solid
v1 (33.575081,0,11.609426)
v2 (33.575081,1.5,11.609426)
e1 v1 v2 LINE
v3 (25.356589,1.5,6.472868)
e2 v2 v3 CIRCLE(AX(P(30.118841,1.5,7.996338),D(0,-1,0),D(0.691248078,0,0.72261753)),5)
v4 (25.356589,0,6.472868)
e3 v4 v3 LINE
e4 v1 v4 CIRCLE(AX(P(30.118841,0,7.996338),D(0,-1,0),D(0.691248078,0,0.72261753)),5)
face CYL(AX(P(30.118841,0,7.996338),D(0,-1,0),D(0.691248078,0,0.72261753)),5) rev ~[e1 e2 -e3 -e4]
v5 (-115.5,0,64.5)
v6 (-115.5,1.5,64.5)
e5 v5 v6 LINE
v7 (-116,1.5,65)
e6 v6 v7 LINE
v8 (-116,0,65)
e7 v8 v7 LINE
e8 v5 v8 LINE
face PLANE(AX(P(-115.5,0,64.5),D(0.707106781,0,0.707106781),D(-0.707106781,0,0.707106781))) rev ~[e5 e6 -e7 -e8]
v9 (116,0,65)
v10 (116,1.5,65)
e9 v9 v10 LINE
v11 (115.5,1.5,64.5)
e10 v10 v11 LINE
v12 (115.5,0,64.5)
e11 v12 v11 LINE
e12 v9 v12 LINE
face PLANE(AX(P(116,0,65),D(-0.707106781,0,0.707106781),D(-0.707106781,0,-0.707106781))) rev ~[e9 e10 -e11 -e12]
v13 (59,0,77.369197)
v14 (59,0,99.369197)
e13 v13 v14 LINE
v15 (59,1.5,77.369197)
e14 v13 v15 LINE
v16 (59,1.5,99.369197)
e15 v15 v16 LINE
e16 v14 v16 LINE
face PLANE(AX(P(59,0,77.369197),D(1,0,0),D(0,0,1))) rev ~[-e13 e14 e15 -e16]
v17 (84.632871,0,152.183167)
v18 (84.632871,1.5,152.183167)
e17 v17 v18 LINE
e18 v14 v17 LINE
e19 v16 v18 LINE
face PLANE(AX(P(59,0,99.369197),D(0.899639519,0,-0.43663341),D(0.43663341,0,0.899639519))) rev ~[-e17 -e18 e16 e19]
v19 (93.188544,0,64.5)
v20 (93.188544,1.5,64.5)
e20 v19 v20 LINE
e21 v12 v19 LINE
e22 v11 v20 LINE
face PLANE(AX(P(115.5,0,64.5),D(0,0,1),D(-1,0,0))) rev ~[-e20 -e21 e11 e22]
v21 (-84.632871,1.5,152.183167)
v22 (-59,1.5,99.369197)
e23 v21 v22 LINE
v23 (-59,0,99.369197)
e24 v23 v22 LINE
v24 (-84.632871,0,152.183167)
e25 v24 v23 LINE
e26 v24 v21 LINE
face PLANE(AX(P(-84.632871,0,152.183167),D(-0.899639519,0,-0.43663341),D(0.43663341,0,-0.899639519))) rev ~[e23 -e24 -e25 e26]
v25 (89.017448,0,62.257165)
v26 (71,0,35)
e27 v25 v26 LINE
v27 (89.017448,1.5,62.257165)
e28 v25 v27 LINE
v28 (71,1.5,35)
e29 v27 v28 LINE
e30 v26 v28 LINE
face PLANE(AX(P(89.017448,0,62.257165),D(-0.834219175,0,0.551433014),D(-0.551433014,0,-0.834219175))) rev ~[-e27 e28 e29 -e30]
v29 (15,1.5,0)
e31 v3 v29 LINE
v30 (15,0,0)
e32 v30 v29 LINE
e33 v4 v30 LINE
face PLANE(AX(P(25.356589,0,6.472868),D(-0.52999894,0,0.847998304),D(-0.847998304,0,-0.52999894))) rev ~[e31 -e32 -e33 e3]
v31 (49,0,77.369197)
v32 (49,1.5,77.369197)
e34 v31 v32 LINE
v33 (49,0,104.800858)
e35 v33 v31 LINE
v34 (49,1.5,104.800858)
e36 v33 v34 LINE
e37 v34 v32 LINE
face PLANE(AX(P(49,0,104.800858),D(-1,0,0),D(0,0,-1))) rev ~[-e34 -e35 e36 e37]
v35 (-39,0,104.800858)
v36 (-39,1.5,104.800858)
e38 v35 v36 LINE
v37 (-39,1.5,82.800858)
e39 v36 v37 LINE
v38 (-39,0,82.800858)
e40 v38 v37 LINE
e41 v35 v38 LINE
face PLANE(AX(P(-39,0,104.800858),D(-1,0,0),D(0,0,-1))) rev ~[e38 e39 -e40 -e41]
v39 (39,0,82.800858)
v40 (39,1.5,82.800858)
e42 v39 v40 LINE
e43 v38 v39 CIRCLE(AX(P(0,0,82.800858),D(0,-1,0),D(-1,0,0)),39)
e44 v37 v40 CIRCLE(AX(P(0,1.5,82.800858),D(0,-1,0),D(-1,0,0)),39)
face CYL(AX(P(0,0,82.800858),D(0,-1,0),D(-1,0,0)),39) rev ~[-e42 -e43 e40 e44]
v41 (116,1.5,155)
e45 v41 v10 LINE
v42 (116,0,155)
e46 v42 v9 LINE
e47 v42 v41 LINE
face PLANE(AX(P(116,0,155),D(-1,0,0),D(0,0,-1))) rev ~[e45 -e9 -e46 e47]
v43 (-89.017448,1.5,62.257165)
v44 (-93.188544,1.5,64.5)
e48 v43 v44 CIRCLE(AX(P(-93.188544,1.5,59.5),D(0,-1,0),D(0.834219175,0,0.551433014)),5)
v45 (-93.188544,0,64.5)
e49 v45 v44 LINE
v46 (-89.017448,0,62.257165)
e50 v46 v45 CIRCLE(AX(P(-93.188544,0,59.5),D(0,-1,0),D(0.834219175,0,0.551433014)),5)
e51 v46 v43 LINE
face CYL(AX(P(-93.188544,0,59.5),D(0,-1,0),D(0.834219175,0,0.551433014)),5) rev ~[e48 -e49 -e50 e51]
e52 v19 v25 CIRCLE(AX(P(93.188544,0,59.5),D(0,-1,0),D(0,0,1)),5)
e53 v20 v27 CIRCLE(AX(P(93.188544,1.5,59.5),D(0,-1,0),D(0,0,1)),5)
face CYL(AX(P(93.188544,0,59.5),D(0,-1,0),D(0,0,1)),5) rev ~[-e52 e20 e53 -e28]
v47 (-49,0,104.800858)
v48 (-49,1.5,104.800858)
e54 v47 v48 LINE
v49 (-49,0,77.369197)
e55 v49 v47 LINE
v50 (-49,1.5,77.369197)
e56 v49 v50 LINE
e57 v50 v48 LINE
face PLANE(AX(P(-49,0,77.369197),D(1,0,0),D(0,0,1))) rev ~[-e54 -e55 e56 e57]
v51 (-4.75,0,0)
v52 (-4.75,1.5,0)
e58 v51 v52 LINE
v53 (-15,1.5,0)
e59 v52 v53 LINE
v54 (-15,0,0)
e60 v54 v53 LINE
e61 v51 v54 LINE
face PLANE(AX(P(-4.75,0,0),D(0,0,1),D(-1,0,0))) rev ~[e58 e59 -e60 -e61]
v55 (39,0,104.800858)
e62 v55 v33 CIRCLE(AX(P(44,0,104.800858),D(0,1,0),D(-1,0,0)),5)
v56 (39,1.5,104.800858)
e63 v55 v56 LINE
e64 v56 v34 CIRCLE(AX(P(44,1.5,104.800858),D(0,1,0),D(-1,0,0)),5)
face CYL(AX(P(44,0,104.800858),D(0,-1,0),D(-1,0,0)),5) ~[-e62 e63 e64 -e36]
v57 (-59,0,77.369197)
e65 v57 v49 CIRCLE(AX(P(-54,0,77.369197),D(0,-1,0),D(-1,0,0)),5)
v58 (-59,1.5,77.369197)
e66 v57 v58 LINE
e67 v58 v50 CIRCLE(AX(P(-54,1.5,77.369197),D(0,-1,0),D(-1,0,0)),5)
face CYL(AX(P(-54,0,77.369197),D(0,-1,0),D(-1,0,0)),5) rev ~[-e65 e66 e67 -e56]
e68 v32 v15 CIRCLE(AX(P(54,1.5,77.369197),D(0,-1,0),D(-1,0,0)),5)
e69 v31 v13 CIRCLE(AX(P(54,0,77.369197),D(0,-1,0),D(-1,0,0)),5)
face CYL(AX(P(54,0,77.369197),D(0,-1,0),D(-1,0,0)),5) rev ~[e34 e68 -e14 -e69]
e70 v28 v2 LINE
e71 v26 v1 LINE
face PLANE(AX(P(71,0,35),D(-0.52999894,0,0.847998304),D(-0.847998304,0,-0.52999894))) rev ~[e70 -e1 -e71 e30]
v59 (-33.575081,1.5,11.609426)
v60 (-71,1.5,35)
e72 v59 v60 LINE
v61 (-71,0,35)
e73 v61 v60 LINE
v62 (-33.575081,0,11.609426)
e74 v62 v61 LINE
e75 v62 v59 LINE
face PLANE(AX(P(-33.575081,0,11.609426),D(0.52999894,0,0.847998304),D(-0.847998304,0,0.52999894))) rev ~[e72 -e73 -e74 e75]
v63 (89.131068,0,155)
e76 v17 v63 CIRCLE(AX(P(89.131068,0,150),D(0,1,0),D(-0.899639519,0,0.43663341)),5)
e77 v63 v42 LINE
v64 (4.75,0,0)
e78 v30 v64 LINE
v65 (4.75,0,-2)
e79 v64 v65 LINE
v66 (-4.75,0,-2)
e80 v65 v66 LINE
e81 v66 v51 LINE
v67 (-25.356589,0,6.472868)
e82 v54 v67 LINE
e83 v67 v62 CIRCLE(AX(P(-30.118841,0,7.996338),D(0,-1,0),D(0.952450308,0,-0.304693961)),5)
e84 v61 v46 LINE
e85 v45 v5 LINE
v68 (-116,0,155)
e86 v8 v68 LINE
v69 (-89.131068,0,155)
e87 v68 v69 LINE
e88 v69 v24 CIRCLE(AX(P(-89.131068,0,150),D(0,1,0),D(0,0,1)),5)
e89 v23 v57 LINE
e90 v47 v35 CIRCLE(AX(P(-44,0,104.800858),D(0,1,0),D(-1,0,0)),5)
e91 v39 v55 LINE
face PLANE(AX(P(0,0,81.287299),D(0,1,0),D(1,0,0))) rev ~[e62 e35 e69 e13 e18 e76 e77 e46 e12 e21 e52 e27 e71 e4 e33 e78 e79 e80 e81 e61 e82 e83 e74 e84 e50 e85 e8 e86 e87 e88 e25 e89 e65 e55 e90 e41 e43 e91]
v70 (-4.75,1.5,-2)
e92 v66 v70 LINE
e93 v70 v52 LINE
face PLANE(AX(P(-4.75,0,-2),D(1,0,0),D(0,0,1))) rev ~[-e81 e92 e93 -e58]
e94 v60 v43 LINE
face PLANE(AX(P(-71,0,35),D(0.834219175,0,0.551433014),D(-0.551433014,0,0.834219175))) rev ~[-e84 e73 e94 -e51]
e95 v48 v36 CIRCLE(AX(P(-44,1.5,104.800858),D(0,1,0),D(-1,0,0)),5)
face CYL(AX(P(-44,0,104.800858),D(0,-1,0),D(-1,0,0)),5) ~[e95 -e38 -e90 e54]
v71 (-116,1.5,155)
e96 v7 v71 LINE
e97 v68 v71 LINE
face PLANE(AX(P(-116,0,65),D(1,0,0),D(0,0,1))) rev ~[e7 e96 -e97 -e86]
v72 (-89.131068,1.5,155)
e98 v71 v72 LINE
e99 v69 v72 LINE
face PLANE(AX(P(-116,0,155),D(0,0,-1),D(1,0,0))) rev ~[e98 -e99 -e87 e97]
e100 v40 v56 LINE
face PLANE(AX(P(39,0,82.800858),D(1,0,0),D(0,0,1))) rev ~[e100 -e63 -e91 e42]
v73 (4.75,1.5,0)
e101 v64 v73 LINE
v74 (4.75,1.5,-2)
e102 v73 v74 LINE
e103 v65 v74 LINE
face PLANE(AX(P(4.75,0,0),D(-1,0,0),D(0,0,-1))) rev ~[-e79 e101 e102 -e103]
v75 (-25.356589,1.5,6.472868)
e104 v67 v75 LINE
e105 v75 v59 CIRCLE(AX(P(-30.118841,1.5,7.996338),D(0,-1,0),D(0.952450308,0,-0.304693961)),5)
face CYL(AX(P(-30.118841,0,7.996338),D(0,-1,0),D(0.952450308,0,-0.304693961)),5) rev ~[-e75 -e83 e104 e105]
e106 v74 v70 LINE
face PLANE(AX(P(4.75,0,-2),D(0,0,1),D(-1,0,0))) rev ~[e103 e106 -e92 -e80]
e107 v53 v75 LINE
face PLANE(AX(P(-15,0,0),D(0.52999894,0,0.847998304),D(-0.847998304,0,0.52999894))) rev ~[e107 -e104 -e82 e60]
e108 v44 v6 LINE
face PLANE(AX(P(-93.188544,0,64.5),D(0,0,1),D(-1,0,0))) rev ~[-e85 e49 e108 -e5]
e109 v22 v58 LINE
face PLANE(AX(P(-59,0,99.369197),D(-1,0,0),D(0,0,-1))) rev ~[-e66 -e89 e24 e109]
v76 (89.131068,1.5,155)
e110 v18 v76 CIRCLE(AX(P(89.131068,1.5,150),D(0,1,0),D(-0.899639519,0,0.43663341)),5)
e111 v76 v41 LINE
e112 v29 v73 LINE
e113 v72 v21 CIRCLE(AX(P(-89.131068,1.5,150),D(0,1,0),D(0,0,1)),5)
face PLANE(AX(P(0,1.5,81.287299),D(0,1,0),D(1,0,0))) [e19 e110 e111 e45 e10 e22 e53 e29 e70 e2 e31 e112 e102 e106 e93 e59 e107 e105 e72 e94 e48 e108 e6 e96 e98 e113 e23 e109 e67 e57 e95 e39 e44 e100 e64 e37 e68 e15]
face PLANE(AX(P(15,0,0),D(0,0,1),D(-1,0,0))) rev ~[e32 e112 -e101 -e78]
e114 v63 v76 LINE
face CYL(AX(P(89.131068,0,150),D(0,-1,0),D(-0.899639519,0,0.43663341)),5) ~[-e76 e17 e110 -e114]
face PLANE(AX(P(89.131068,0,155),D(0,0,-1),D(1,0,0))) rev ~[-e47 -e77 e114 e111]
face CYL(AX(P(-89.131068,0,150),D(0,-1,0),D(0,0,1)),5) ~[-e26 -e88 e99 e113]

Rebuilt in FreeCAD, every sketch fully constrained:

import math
import FreeCAD as App
import Part
import Sketcher
from FreeCAD import Vector

doc = App.newDocument("Part")
params = doc.addObject("Spreadsheet::Sheet", "Params")
for row, (alias, value) in enumerate([
    ("sketch1_radius", "5 mm"),
    ("sketch1_radius2", "39 mm"),
    ("sketch1_height", "2 mm"),
    ("sketch1_height2", "90 mm"),
    ("sketch1_height3", "22 mm"),
    ("pad1_length", "1.5 mm"),
], start=1):
    params.set(f"A{row}", alias)
    params.set(f"B{row}", "=" + value)
    params.setAlias(f"B{row}", alias)

body = doc.addObject("PartDesign::Body", "Body")

sketch1 = body.newObject("Sketcher::SketchObject", "Sketch")
sketch1.AttachmentSupport = (doc.getObject("XZ_Plane"), [""])
sketch1.MapMode = "FlatFace"
sketch1.addGeometry(Part.LineSegment(Vector(15, 0, 0), Vector(4.8, 0, 0)), False)
sketch1.addGeometry(Part.LineSegment(Vector(4.8, 0, 0), Vector(4.8, -2, 0)), False)
sketch1.addGeometry(Part.LineSegment(Vector(4.8, -2, 0), Vector(-4.8, -2, 0)), False)
sketch1.addGeometry(Part.LineSegment(Vector(-4.8, -2, 0), Vector(-4.8, 0, 0)), False)
sketch1.addGeometry(Part.LineSegment(Vector(-4.8, 0, 0), Vector(-15, 0, 0)), False)
sketch1.addGeometry(Part.LineSegment(Vector(-15, 0, 0), Vector(-25.4, 6.5, 0)), False)
sketch1.addGeometry(Part.ArcOfCircle(Part.Circle(Vector(-30.1, 8, 0), Vector(0, 0, 1), 5), math.radians(-18), math.radians(134)), False)
sketch1.addGeometry(Part.LineSegment(Vector(-33.6, 11.6, 0), Vector(-71, 35, 0)), False)
sketch1.addGeometry(Part.LineSegment(Vector(-71, 35, 0), Vector(-89, 62.3, 0)), False)
sketch1.addGeometry(Part.ArcOfCircle(Part.Circle(Vector(-93.2, 59.5, 0), Vector(0, 0, 1), 5), math.radians(33), math.radians(90)), False)
sketch1.addGeometry(Part.LineSegment(Vector(-93.2, 64.5, 0), Vector(-115.5, 64.5, 0)), False)
sketch1.addGeometry(Part.LineSegment(Vector(-115.5, 64.5, 0), Vector(-116, 65, 0)), False)
sketch1.addGeometry(Part.LineSegment(Vector(-116, 65, 0), Vector(-116, 155, 0)), False)
sketch1.addGeometry(Part.LineSegment(Vector(-116, 155, 0), Vector(-89.1, 155, 0)), False)
sketch1.addGeometry(Part.ArcOfCircle(Part.Circle(Vector(-89.1, 150, 0), Vector(0, 0, 1), 5), math.radians(26), math.radians(90)), False)
sketch1.addGeometry(Part.LineSegment(Vector(-84.6, 152.2, 0), Vector(-59, 99.4, 0)), False)
sketch1.addGeometry(Part.LineSegment(Vector(-59, 99.4, 0), Vector(-59, 77.4, 0)), False)
sketch1.addGeometry(Part.ArcOfCircle(Part.Circle(Vector(-54, 77.4, 0), Vector(0, 0, 1), 5), math.radians(180), math.radians(360)), False)
sketch1.addGeometry(Part.LineSegment(Vector(-49, 77.4, 0), Vector(-49, 104.8, 0)), False)
sketch1.addGeometry(Part.ArcOfCircle(Part.Circle(Vector(-44, 104.8, 0), Vector(0, 0, 1), 5), math.radians(0), math.radians(180)), False)
sketch1.addGeometry(Part.LineSegment(Vector(-39, 104.8, 0), Vector(-39, 82.8, 0)), False)
sketch1.addGeometry(Part.ArcOfCircle(Part.Circle(Vector(0, 82.8, 0), Vector(0, 0, 1), 39), math.radians(180), math.radians(360)), False)
sketch1.addGeometry(Part.LineSegment(Vector(39, 82.8, 0), Vector(39, 104.8, 0)), False)
sketch1.addGeometry(Part.ArcOfCircle(Part.Circle(Vector(44, 104.8, 0), Vector(0, 0, 1), 5), math.radians(0), math.radians(180)), False)
sketch1.addGeometry(Part.LineSegment(Vector(49, 104.8, 0), Vector(49, 77.4, 0)), False)
sketch1.addGeometry(Part.ArcOfCircle(Part.Circle(Vector(54, 77.4, 0), Vector(0, 0, 1), 5), math.radians(180), math.radians(360)), False)
sketch1.addGeometry(Part.LineSegment(Vector(59, 77.4, 0), Vector(59, 99.4, 0)), False)
sketch1.addGeometry(Part.LineSegment(Vector(59, 99.4, 0), Vector(84.6, 152.2, 0)), False)
sketch1.addGeometry(Part.ArcOfCircle(Part.Circle(Vector(89.1, 150, 0), Vector(0, 0, 1), 5), math.radians(90), math.radians(154)), False)
sketch1.addGeometry(Part.LineSegment(Vector(89.1, 155, 0), Vector(116, 155, 0)), False)
sketch1.addGeometry(Part.LineSegment(Vector(116, 155, 0), Vector(116, 65, 0)), False)
sketch1.addGeometry(Part.LineSegment(Vector(116, 65, 0), Vector(115.5, 64.5, 0)), False)
sketch1.addGeometry(Part.LineSegment(Vector(115.5, 64.5, 0), Vector(93.2, 64.5, 0)), False)
sketch1.addGeometry(Part.ArcOfCircle(Part.Circle(Vector(93.2, 59.5, 0), Vector(0, 0, 1), 5), math.radians(90), math.radians(147)), False)
sketch1.addGeometry(Part.LineSegment(Vector(89, 62.3, 0), Vector(71, 35, 0)), False)
sketch1.addGeometry(Part.LineSegment(Vector(71, 35, 0), Vector(33.6, 11.6, 0)), False)
sketch1.addGeometry(Part.ArcOfCircle(Part.Circle(Vector(30.1, 8, 0), Vector(0, 0, 1), 5), math.radians(46), math.radians(198)), False)
sketch1.addGeometry(Part.LineSegment(Vector(25.4, 6.5, 0), Vector(15, 0, 0)), False)
sketch1.addConstraint(Sketcher.Constraint("Coincident", 0, 2, 1, 1))
sketch1.addConstraint(Sketcher.Constraint("Coincident", 1, 2, 2, 1))
sketch1.addConstraint(Sketcher.Constraint("Coincident", 2, 2, 3, 1))
sketch1.addConstraint(Sketcher.Constraint("Coincident", 3, 2, 4, 1))
sketch1.addConstraint(Sketcher.Constraint("Coincident", 4, 2, 5, 1))
sketch1.addConstraint(Sketcher.Constraint("Coincident", 5, 2, 6, 1))
sketch1.addConstraint(Sketcher.Constraint("Coincident", 6, 2, 7, 1))
sketch1.addConstraint(Sketcher.Constraint("Coincident", 7, 2, 8, 1))
sketch1.addConstraint(Sketcher.Constraint("Tangent", 8, 2, 9, 1))
sketch1.addConstraint(Sketcher.Constraint("Tangent", 9, 2, 10, 1))
sketch1.addConstraint(Sketcher.Constraint("Coincident", 10, 2, 11, 1))
sketch1.addConstraint(Sketcher.Constraint("Coincident", 11, 2, 12, 1))
sketch1.addConstraint(Sketcher.Constraint("Coincident", 12, 2, 13, 1))
sketch1.addConstraint(Sketcher.Constraint("Tangent", 13, 2, 14, 2))
sketch1.addConstraint(Sketcher.Constraint("Tangent", 14, 1, 15, 1))
sketch1.addConstraint(Sketcher.Constraint("Coincident", 15, 2, 16, 1))
sketch1.addConstraint(Sketcher.Constraint("Tangent", 16, 2, 17, 1))
sketch1.addConstraint(Sketcher.Constraint("Tangent", 17, 2, 18, 1))
sketch1.addConstraint(Sketcher.Constraint("Tangent", 18, 2, 19, 2))
sketch1.addConstraint(Sketcher.Constraint("Tangent", 19, 1, 20, 1))
sketch1.addConstraint(Sketcher.Constraint("Tangent", 20, 2, 21, 1))
sketch1.addConstraint(Sketcher.Constraint("Tangent", 21, 2, 22, 1))
sketch1.addConstraint(Sketcher.Constraint("Tangent", 22, 2, 23, 2))
sketch1.addConstraint(Sketcher.Constraint("Tangent", 23, 1, 24, 1))
sketch1.addConstraint(Sketcher.Constraint("Tangent", 24, 2, 25, 1))
sketch1.addConstraint(Sketcher.Constraint("Tangent", 25, 2, 26, 1))
sketch1.addConstraint(Sketcher.Constraint("Coincident", 26, 2, 27, 1))
sketch1.addConstraint(Sketcher.Constraint("Tangent", 27, 2, 28, 2))
sketch1.addConstraint(Sketcher.Constraint("Tangent", 28, 1, 29, 1))
sketch1.addConstraint(Sketcher.Constraint("Coincident", 29, 2, 30, 1))
sketch1.addConstraint(Sketcher.Constraint("Coincident", 30, 2, 31, 1))
sketch1.addConstraint(Sketcher.Constraint("Coincident", 31, 2, 32, 1))
sketch1.addConstraint(Sketcher.Constraint("Tangent", 32, 2, 33, 1))
sketch1.addConstraint(Sketcher.Constraint("Tangent", 33, 2, 34, 1))
sketch1.addConstraint(Sketcher.Constraint("Coincident", 34, 2, 35, 1))
sketch1.addConstraint(Sketcher.Constraint("Coincident", 35, 2, 36, 1))
sketch1.addConstraint(Sketcher.Constraint("Coincident", 36, 2, 37, 1))
sketch1.addConstraint(Sketcher.Constraint("Coincident", 37, 2, 0, 1))
sketch1.addConstraint(Sketcher.Constraint("Horizontal", 0))
sketch1.addConstraint(Sketcher.Constraint("Vertical", 1))
sketch1.addConstraint(Sketcher.Constraint("Horizontal", 2))
sketch1.addConstraint(Sketcher.Constraint("Vertical", 3))
sketch1.addConstraint(Sketcher.Constraint("Horizontal", 4))
sketch1.addConstraint(Sketcher.Constraint("Horizontal", 10))
sketch1.addConstraint(Sketcher.Constraint("Vertical", 12))
sketch1.addConstraint(Sketcher.Constraint("Horizontal", 13))
sketch1.addConstraint(Sketcher.Constraint("Vertical", 16))
sketch1.addConstraint(Sketcher.Constraint("Vertical", 18))
sketch1.addConstraint(Sketcher.Constraint("Vertical", 20))
sketch1.addConstraint(Sketcher.Constraint("Vertical", 22))
sketch1.addConstraint(Sketcher.Constraint("Vertical", 24))
sketch1.addConstraint(Sketcher.Constraint("Vertical", 26))
sketch1.addConstraint(Sketcher.Constraint("Horizontal", 29))
sketch1.addConstraint(Sketcher.Constraint("Vertical", 30))
sketch1.addConstraint(Sketcher.Constraint("Horizontal", 32))
sketch1.addConstraint(Sketcher.Constraint("Equal", 6, 9))
sketch1.addConstraint(Sketcher.Constraint("Equal", 9, 14))
sketch1.addConstraint(Sketcher.Constraint("Equal", 14, 17))
sketch1.addConstraint(Sketcher.Constraint("Equal", 17, 19))
sketch1.addConstraint(Sketcher.Constraint("Equal", 19, 23))
sketch1.addConstraint(Sketcher.Constraint("Equal", 23, 25))
sketch1.addConstraint(Sketcher.Constraint("Equal", 25, 28))
sketch1.addConstraint(Sketcher.Constraint("Equal", 28, 33))
sketch1.addConstraint(Sketcher.Constraint("Equal", 33, 36))
sketch1.addConstraint(Sketcher.Constraint("Symmetric", 0, 2, 3, 2, -1, 1))
sketch1.addConstraint(Sketcher.Constraint("Symmetric", 19, 3, 23, 3, -2))
sketch1.addConstraint(Sketcher.Constraint("Symmetric", 14, 3, 28, 3, -2))
sketch1.addConstraint(Sketcher.Constraint("Symmetric", 9, 3, 33, 3, -2))
sketch1.addConstraint(Sketcher.Constraint("Symmetric", 6, 3, 36, 3, -2))
sketch1.addConstraint(Sketcher.Constraint("Symmetric", 11, 2, 30, 2, -2))
sketch1.addConstraint(Sketcher.Constraint("Symmetric", 7, 2, 34, 2, -2))
sketch1.addConstraint(Sketcher.Constraint("Symmetric", 4, 2, 37, 2, -2))
sketch1.addConstraint(Sketcher.Constraint("Parallel", 5, 7))
sketch1.addConstraint(Sketcher.Constraint("Perpendicular", 11, 31))
sketch1.addConstraint(Sketcher.Constraint("Parallel", 35, 37))
sketch1.addConstraint(Sketcher.Constraint("Horizontal", 17, 3, 25, 3))
sketch1.addConstraint(Sketcher.Constraint("Horizontal", 15, 2, 26, 2))
sketch1.addConstraint(Sketcher.Constraint("Horizontal", 6, 2, 35, 2))
sketch1.addConstraint(Sketcher.Constraint("Equal", 10, 32))
sketch1.addConstraint(Sketcher.Constraint("Equal", 16, 20))
sketch1.addConstraint(Sketcher.Constraint("Radius", 6, 5.0))
sketch1.addConstraint(Sketcher.Constraint("Radius", 21, 39.0))
sketch1.addConstraint(Sketcher.Constraint("DistanceY", 1, 2, 1, 1, 2.0))
sketch1.addConstraint(Sketcher.Constraint("DistanceY", 12, 1, 12, 2, 90.0))
sketch1.addConstraint(Sketcher.Constraint("DistanceY", 16, 2, 16, 1, 22.0))
sketch1.addConstraint(Sketcher.Constraint("DistanceX", 2, 2, 2, 1, 9.5))
sketch1.addConstraint(Sketcher.Constraint("DistanceY", -1, 1, 14, 3, 150.0))
sketch1.addConstraint(Sketcher.Constraint("DistanceX", 4, 2, -1, 1, 15.0))
sketch1.addConstraint(Sketcher.Constraint("DistanceX", 7, 2, -1, 1, 71.0))
sketch1.addConstraint(Sketcher.Constraint("DistanceY", -1, 1, 7, 2, 35.0))
sketch1.addConstraint(Sketcher.Constraint("DistanceX", 11, 2, -1, 1, 116.0))
sketch1.addConstraint(Sketcher.Constraint("DistanceY", -1, 1, 9, 3, 59.5))
sketch1.addConstraint(Sketcher.Constraint("DistanceX", 13, 1, 13, 2, 26.868932))
sketch1.addConstraint(Sketcher.Constraint("DistanceY", 18, 1, 18, 2, 27.431661))
sketch1.addConstraint(Sketcher.Constraint("DistanceX", 10, 2, 10, 1, 22.311456))
sketch1.addConstraint(Sketcher.Constraint("DistanceX", 6, 3, -1, 1, 30.118841))
sketch1.addConstraint(Sketcher.Constraint("DistanceY", -1, 1, 6, 3, 7.996338))
sketch1.addConstraint(Sketcher.Constraint("DistanceY", -1, 1, 19, 3, 104.800858))
sketch1.addConstraint(Sketcher.Constraint("DistanceX", 5, 2, -1, 1, 25.356589))
sketch1.setExpression("Constraints[80]", "Params.sketch1_radius")
sketch1.setExpression("Constraints[81]", "Params.sketch1_radius2")
sketch1.setExpression("Constraints[82]", "Params.sketch1_height")
sketch1.setExpression("Constraints[83]", "Params.sketch1_height2")
sketch1.setExpression("Constraints[84]", "Params.sketch1_height3")
pad1 = body.newObject("PartDesign::Pad", "Pad")
pad1.Profile = sketch1
pad1.setExpression("Length", "Params.pad1_length")
pad1.Reversed = True

doc.recompute()
